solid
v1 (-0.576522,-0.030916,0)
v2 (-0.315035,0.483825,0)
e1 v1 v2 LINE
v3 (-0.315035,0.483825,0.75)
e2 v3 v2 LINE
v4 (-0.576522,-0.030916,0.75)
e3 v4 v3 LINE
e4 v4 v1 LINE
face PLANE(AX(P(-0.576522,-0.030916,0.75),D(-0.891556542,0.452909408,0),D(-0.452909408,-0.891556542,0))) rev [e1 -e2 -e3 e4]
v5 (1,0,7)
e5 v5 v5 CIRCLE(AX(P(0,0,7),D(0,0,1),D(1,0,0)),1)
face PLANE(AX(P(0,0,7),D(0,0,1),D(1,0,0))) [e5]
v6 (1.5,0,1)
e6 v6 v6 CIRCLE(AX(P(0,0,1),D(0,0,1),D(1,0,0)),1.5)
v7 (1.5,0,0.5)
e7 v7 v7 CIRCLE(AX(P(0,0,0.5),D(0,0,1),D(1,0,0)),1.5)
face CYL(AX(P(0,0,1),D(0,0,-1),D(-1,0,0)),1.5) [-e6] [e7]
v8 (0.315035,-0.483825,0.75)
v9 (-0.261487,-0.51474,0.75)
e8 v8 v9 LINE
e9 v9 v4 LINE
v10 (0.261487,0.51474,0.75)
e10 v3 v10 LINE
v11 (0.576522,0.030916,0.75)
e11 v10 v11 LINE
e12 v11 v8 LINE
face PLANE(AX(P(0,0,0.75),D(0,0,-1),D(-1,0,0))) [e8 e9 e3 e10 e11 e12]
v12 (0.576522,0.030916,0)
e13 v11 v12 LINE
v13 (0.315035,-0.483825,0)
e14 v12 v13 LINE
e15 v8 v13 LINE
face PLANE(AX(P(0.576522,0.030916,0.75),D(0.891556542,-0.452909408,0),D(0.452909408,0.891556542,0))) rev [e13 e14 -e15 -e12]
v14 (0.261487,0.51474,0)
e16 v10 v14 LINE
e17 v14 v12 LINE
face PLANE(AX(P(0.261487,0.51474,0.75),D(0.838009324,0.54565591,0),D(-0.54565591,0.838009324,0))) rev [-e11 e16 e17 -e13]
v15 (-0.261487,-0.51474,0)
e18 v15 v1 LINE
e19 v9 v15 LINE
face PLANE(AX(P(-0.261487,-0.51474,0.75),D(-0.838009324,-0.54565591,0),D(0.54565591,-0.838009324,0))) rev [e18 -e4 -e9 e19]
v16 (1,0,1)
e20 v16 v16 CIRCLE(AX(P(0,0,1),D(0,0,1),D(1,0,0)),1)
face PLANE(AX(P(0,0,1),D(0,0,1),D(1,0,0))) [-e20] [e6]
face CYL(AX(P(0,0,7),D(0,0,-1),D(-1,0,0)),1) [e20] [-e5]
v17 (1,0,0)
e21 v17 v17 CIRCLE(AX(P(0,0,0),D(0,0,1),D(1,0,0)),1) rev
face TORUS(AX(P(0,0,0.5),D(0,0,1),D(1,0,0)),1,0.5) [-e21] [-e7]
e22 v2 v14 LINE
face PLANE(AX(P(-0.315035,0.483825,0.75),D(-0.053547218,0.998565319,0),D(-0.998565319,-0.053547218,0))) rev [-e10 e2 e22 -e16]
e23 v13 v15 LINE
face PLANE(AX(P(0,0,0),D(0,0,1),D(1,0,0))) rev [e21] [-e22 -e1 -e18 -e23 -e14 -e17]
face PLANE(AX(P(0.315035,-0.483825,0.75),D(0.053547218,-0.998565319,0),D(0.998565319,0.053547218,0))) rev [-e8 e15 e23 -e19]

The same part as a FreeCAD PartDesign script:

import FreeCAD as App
import Part
import Sketcher
from FreeCAD import Vector


def edges_at(feature, points):
    """Names of the edges that pass closest to the given points."""
    edges = feature.Shape.Edges
    near = lambda p: min(range(len(edges)), key=lambda i: edges[i].distToShape(Part.Vertex(*p))[0])
    return sorted({f"Edge{near(p) + 1}" for p in points})


def add_polygon(sketch, points):
    """Adds a closed chain of lines whose ends are joined by coincident constraints."""
    first, n = sketch.GeometryCount, len(points)
    for a, b in zip(points, points[1:] + points[:1]):
        sketch.addGeometry(Part.LineSegment(App.Vector(*a, 0), App.Vector(*b, 0)), False)
    for i in range(n):
        sketch.addConstraint(Sketcher.Constraint("Coincident", first + i, 2, first + (i + 1) % n, 1))

doc = App.newDocument("Part")
body = doc.addObject("PartDesign::Body", "Body")

# Sketch on XY plane
sketch1 = body.newObject("Sketcher::SketchObject", "Sketch")
sketch1.AttachmentSupport = (doc.getObject("XY_Plane"), [""])
sketch1.MapMode = "FlatFace"
sketch1.addGeometry(Part.Circle(Vector(0, 0, 0), Vector(0, 0, 1), 1.5), False)
sketch1.addConstraint(Sketcher.Constraint("Coincident", 0, 3, -1, 1))
sketch1.addConstraint(Sketcher.Constraint("Diameter", 0, 3.0))
pad1 = body.newObject("PartDesign::Pad", "Pad")
pad1.Profile = sketch1
pad1.Length = 1

# Sketch on XY plane
sketch2 = body.newObject("Sketcher::SketchObject", "Sketch001")
sketch2.AttachmentSupport = (doc.getObject("XY_Plane"), [""])
sketch2.MapMode = "FlatFace"
sketch2.AttachmentOffset = App.Placement(Vector(0, 0, 1), App.Rotation())
sketch2.addGeometry(Part.Circle(Vector(0, 0, 0), Vector(0, 0, 1), 1), False)
sketch2.addConstraint(Sketcher.Constraint("Coincident", 0, 3, -1, 1))
sketch2.addConstraint(Sketcher.Constraint("Diameter", 0, 2.0))
pad2 = body.newObject("PartDesign::Pad", "Pad001")
pad2.Profile = sketch2
pad2.Length = 6

# Sketch on XY plane
sketch3 = body.newObject("Sketcher::SketchObject", "Sketch002")
sketch3.AttachmentSupport = (doc.getObject("XY_Plane"), [""])
sketch3.MapMode = "FlatFace"
add_polygon(sketch3, [(-0.3, -0.5), (-0.6, 0), (-0.3, 0.5), (0.3, 0.5), (0.6, 0), (0.3, -0.5)])  # lines 0-5
sketch3.addConstraint(Sketcher.Constraint("Symmetric", 0, 2, 3, 2, -1, 1))
sketch3.addConstraint(Sketcher.Constraint("Symmetric", 1, 2, 4, 2, -1, 1))
sketch3.addConstraint(Sketcher.Constraint("Symmetric", 2, 2, 5, 2, -1, 1))
sketch3.addConstraint(Sketcher.Constraint("Equal", 0, 1))
sketch3.addConstraint(Sketcher.Constraint("Equal", 1, 2))
sketch3.addConstraint(Sketcher.Constraint("Distance", 0, 0.57735))
sketch3.addConstraint(Sketcher.Constraint("DistanceX", 0, 2, -1, 1, 0.576522))
sketch3.addConstraint(Sketcher.Constraint("DistanceY", -1, 1, 2, 2, 0.51474))
sketch3.addConstraint(Sketcher.Constraint("DistanceY", 0, 2, 1, 2, 0.51474))
pocket1 = body.newObject("PartDesign::Pocket", "Pocket")
pocket1.Profile = sketch3
pocket1.Length = 0.75
pocket1.Reversed = True
doc.recompute()

fillet = body.newObject("PartDesign::Fillet", "Fillet")
fillet.Base = (pocket1, edges_at(pocket1, [(-1.5, 0, 0)]))
fillet.Radius = 0.5

doc.recompute()
